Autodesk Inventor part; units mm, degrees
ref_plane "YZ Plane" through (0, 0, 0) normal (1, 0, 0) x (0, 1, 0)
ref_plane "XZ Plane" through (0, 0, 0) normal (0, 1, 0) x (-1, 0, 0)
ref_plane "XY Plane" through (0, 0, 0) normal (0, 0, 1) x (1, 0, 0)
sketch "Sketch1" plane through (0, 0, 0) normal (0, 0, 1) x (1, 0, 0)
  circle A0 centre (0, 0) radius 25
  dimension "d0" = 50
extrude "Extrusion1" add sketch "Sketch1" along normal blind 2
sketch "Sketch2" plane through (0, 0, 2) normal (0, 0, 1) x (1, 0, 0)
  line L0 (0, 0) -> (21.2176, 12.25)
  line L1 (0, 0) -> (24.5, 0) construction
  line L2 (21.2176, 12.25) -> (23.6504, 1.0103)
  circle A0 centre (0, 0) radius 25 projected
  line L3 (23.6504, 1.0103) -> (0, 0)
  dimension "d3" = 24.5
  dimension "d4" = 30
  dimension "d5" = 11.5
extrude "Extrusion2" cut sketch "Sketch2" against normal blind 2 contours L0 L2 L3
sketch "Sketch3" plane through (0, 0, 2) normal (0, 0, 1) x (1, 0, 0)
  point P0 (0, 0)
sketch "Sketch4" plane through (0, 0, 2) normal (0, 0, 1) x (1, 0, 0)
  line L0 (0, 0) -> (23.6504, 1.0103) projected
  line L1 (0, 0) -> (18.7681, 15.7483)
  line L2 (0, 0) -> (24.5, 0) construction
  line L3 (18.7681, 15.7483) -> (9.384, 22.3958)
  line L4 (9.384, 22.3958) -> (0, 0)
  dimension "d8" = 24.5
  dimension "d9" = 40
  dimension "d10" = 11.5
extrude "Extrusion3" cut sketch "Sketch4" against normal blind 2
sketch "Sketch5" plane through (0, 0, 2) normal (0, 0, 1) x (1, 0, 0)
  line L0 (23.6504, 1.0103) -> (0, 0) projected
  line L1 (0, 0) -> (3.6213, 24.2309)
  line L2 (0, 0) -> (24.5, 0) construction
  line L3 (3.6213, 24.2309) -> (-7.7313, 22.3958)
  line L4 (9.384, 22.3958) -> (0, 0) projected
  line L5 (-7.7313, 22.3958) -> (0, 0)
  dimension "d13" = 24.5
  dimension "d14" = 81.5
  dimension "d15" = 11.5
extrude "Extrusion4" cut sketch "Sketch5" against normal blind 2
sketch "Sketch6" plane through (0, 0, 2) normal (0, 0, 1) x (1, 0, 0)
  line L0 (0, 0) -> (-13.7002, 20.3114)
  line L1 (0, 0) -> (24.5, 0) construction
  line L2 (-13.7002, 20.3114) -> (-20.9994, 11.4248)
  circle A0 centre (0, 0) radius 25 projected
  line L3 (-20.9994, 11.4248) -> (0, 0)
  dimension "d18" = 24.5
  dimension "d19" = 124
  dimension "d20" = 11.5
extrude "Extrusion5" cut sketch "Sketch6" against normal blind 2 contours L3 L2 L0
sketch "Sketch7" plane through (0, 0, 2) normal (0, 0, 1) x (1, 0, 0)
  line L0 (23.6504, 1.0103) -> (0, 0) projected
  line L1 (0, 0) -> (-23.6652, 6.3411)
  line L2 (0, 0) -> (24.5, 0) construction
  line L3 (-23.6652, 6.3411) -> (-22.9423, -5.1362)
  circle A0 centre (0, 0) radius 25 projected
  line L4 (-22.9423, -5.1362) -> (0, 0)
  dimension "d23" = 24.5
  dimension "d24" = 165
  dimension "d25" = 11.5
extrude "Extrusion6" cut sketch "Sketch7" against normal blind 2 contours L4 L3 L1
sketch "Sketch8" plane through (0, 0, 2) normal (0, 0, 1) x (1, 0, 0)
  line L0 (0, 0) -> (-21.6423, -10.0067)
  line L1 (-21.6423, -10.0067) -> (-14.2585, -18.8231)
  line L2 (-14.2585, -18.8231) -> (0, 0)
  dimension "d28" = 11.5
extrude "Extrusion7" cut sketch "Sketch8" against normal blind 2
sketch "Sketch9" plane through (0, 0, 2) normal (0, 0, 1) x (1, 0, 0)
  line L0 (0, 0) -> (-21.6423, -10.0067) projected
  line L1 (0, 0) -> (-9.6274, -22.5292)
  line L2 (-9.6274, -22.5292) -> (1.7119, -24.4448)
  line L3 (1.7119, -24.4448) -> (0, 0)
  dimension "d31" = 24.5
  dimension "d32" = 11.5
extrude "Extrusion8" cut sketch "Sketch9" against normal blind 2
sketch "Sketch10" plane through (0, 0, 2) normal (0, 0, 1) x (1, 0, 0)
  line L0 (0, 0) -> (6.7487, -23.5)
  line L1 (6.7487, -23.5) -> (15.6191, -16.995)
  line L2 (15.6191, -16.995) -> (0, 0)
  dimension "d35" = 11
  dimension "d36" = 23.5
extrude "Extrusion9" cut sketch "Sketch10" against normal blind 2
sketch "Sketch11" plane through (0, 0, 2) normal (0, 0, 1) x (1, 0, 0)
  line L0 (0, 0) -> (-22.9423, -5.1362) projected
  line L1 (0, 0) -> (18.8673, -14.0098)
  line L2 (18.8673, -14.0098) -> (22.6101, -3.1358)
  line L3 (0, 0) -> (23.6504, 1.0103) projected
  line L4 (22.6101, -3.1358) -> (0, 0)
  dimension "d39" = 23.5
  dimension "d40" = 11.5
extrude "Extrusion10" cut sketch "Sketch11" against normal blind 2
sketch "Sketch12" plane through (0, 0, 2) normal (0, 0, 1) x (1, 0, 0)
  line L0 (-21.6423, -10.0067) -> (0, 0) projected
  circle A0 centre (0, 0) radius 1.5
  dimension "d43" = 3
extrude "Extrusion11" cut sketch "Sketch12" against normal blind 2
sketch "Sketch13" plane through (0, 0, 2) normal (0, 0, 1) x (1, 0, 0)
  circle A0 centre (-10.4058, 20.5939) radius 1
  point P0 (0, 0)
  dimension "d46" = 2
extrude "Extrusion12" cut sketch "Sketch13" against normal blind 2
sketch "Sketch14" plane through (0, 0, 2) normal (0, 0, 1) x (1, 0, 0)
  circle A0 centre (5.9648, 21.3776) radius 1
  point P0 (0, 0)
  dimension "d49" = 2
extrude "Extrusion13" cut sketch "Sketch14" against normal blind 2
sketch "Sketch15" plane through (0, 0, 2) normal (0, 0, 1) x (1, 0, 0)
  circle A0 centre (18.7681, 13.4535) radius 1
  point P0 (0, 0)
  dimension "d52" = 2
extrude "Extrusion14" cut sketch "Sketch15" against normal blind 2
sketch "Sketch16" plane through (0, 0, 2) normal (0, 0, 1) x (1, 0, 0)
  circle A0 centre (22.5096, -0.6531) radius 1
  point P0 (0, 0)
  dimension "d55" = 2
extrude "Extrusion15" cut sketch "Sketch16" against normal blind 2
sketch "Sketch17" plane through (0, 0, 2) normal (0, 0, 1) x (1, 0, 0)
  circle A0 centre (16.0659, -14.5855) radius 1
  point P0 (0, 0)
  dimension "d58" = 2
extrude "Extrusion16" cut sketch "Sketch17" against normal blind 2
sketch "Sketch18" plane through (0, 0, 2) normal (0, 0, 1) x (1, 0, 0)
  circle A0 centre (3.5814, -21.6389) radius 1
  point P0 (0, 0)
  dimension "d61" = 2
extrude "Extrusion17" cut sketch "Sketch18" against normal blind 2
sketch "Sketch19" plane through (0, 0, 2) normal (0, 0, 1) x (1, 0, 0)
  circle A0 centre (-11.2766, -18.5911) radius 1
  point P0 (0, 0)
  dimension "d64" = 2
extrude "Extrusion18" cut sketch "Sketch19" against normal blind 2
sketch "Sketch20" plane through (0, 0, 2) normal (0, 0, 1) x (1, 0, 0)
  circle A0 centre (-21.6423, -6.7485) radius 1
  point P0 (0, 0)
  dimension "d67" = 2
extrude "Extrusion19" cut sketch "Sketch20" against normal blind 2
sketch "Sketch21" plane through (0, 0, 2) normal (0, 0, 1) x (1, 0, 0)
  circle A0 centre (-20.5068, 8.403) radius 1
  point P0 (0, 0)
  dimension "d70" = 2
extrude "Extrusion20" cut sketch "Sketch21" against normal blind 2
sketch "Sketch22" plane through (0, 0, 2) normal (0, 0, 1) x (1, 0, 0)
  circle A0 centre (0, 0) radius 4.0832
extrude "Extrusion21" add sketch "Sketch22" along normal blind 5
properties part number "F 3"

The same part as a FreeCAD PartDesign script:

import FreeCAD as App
import Part
import Sketcher
Q = App.Units.Quantity


def add_polygon(sketch, points):
    """Adds a closed chain of lines whose ends are joined by coincident constraints."""
    first, n = sketch.GeometryCount, len(points)
    for a, b in zip(points, points[1:] + points[:1]):
        sketch.addGeometry(Part.LineSegment(App.Vector(*a, 0), App.Vector(*b, 0)), False)
    for i in range(n):
        sketch.addConstraint(Sketcher.Constraint("Coincident", first + i, 2, first + (i + 1) % n, 1))

doc = App.newDocument("Part")
body = doc.addObject("PartDesign::Body", "Body")

sketch1 = body.newObject("Sketcher::SketchObject", "Sketch")
sketch1.AttachmentSupport = (doc.getObject("XY_Plane"), [""])
sketch1.MapMode = "FlatFace"
sketch1.addGeometry(Part.Circle(App.Vector(0, 0, 0), App.Vector(0, 0, 1), 25), False)
sketch1.addConstraint(Sketcher.Constraint("Coincident", 0, 3, -1, 1))
sketch1.addConstraint(Sketcher.Constraint("Diameter", 0, Q("50 mm")))
pad1 = body.newObject("PartDesign::Pad", "Pad")
pad1.Profile = sketch1
pad1.Length = 2

sketch2 = body.newObject("Sketcher::SketchObject", "Sketch001")
sketch2.AttachmentSupport = (doc.getObject("XY_Plane"), [""])
sketch2.MapMode = "FlatFace"
sketch2.AttachmentOffset = App.Placement(App.Vector(0, 0, 2), App.Rotation())
add_polygon(sketch2, [(21, 12), (0, 0), (24, 1)])
sketch2.addConstraint(Sketcher.Constraint("Coincident", 0, 2, -1, 1))
sketch2.addConstraint(Sketcher.Constraint("Distance", 0, Q("24.5 mm")))
sketch2.addConstraint(Sketcher.Constraint("Distance", 2, Q("11.5 mm")))
sketch2.addConstraint(Sketcher.Constraint("Angle", 0, Q("-150 deg")))
sketch2.addConstraint(Sketcher.Constraint("Distance", 1, Q("23.672 mm")))
pocket1 = body.newObject("PartDesign::Pocket", "Pocket")
pocket1.Profile = sketch2
pocket1.Length = 2

sketch3 = body.newObject("Sketcher::SketchObject", "Sketch002")
sketch3.AttachmentSupport = (doc.getObject("XY_Plane"), [""])
sketch3.MapMode = "FlatFace"
sketch3.AttachmentOffset = App.Placement(App.Vector(0, 0, 2), App.Rotation())
add_polygon(sketch3, [(9, 22), (0, 0), (19, 16)])
sketch3.addConstraint(Sketcher.Constraint("Coincident", 0, 2, -1, 1))
sketch3.addConstraint(Sketcher.Constraint("Angle", 1, Q("40 deg")))
sketch3.addConstraint(Sketcher.Constraint("Distance", 1, Q("24.5 mm")))
sketch3.addConstraint(Sketcher.Constraint("Distance", 2, Q("11.5 mm")))
sketch3.addConstraint(Sketcher.Constraint("DistanceX", -1, 1, 2, 2, Q("9.384 mm")))
pocket2 = body.newObject("PartDesign::Pocket", "Pocket001")
pocket2.Profile = sketch3
pocket2.Length = 2

sketch4 = body.newObject("Sketcher::SketchObject", "Sketch003")
sketch4.AttachmentSupport = (doc.getObject("XY_Plane"), [""])
sketch4.MapMode = "FlatFace"
sketch4.AttachmentOffset = App.Placement(App.Vector(0, 0, 2), App.Rotation())
add_polygon(sketch4, [(-8, 22), (0, 0), (4, 24)])
sketch4.addConstraint(Sketcher.Constraint("Coincident", 0, 2, -1, 1))
sketch4.addConstraint(Sketcher.Constraint("Angle", 1, Q("81.5 deg")))
sketch4.addConstraint(Sketcher.Constraint("Distance", 1, Q("24.5 mm")))
sketch4.addConstraint(Sketcher.Constraint("Distance", 2, Q("11.5 mm")))
sketch4.addConstraint(Sketcher.Constraint("DistanceY", 2, 2, 1, 2, Q("1.835 mm")))
pocket3 = body.newObject("PartDesign::Pocket", "Pocket002")
pocket3.Profile = sketch4
pocket3.Length = 2

sketch5 = body.newObject("Sketcher::SketchObject", "Sketch004")
sketch5.AttachmentSupport = (doc.getObject("XY_Plane"), [""])
sketch5.MapMode = "FlatFace"
sketch5.AttachmentOffset = App.Placement(App.Vector(0, 0, 2), App.Rotation())
add_polygon(sketch5, [(-21, 11), (0, 0), (-14, 20)])
sketch5.addConstraint(Sketcher.Constraint("Coincident", 0, 2, -1, 1))
sketch5.addConstraint(Sketcher.Constraint("Angle", 1, Q("124 deg")))
sketch5.addConstraint(Sketcher.Constraint("Distance", 1, Q("24.5 mm")))
sketch5.addConstraint(Sketcher.Constraint("Distance", 2, Q("11.5 mm")))
sketch5.addConstraint(Sketcher.Constraint("Distance", 0, Q("23.906 mm")))
pocket4 = body.newObject("PartDesign::Pocket", "Pocket003")
pocket4.Profile = sketch5
pocket4.Length = 2

sketch6 = body.newObject("Sketcher::SketchObject", "Sketch005")
sketch6.AttachmentSupport = (doc.getObject("XY_Plane"), [""])
sketch6.MapMode = "FlatFace"
sketch6.AttachmentOffset = App.Placement(App.Vector(0, 0, 2), App.Rotation())
add_polygon(sketch6, [(-23, -5), (0, 0), (-24, 6)])
sketch6.addConstraint(Sketcher.Constraint("Coincident", 0, 2, -1, 1))
sketch6.addConstraint(Sketcher.Constraint("Angle", 1, Q("165 deg")))
sketch6.addConstraint(Sketcher.Constraint("Distance", 1, Q("24.5 mm")))
sketch6.addConstraint(Sketcher.Constraint("Distance", 2, Q("11.5 mm")))
sketch6.addConstraint(Sketcher.Constraint("Angle", 0, Q("12.619 deg")))
pocket5 = body.newObject("PartDesign::Pocket", "Pocket004")
pocket5.Profile = sketch6
pocket5.Length = 2

sketch7 = body.newObject("Sketcher::SketchObject", "Sketch006")
sketch7.AttachmentSupport = (doc.getObject("XY_Plane"), [""])
sketch7.MapMode = "FlatFace"
sketch7.AttachmentOffset = App.Placement(App.Vector(0, 0, 2), App.Rotation())
add_polygon(sketch7, [(-14, -19), (0, 0), (-22, -10)])
sketch7.addConstraint(Sketcher.Constraint("Coincident", 0, 2, -1, 1))
sketch7.addConstraint(Sketcher.Constraint("Distance", 2, Q("11.5 mm")))
sketch7.addConstraint(Sketcher.Constraint("DistanceY", 2, 2, -1, 1, Q("18.823 mm")))
sketch7.addConstraint(Sketcher.Constraint("Distance", 0, Q("23.6139 mm")))
sketch7.addConstraint(Sketcher.Constraint("Distance", 1, Q("23.8437 mm")))
pocket6 = body.newObject("PartDesign::Pocket", "Pocket005")
pocket6.Profile = sketch7
pocket6.Length = 2

sketch8 = body.newObject("Sketcher::SketchObject", "Sketch007")
sketch8.AttachmentSupport = (doc.getObject("XY_Plane"), [""])
sketch8.MapMode = "FlatFace"
sketch8.AttachmentOffset = App.Placement(App.Vector(0, 0, 2), App.Rotation())
add_polygon(sketch8, [(2, -24), (0, 0), (-10, -23)])
sketch8.addConstraint(Sketcher.Constraint("Coincident", 0, 2, -1, 1))
sketch8.addConstraint(Sketcher.Constraint("Distance", 1, Q("24.5 mm")))
sketch8.addConstraint(Sketcher.Constraint("Distance", 2, Q("11.5 mm")))
sketch8.addConstraint(Sketcher.Constraint("DistanceX", -1, 1, 2, 2, Q("1.712 mm")))
sketch8.addConstraint(Sketcher.Constraint("Distance", 0, Q("24.5047 mm")))
pocket7 = body.newObject("PartDesign::Pocket", "Pocket006")
pocket7.Profile = sketch8
pocket7.Length = 2

sketch9 = body.newObject("Sketcher::SketchObject", "Sketch008")
sketch9.AttachmentSupport = (doc.getObject("XY_Plane"), [""])
sketch9.MapMode = "FlatFace"
sketch9.AttachmentOffset = App.Placement(App.Vector(0, 0, 2), App.Rotation())
add_polygon(sketch9, [(16, -17), (0, 0), (7, -24)])
sketch9.addConstraint(Sketcher.Constraint("Coincident", 0, 2, -1, 1))
sketch9.addConstraint(Sketcher.Constraint("Distance", 2, Q("11 mm")))
sketch9.addConstraint(Sketcher.Constraint("DistanceY", 1, 2, -1, 1, Q("23.5 mm")))
sketch9.addConstraint(Sketcher.Constraint("DistanceX", -1, 1, 2, 2, Q("15.619 mm")))
sketch9.addConstraint(Sketcher.Constraint("DistanceY", 2, 2, -1, 1, Q("16.995 mm")))
pocket8 = body.newObject("PartDesign::Pocket", "Pocket007")
pocket8.Profile = sketch9
pocket8.Length = 2

sketch10 = body.newObject("Sketcher::SketchObject", "Sketch009")
sketch10.AttachmentSupport = (doc.getObject("XY_Plane"), [""])
sketch10.MapMode = "FlatFace"
sketch10.AttachmentOffset = App.Placement(App.Vector(0, 0, 2), App.Rotation())
add_polygon(sketch10, [(23, -3), (0, 0), (19, -14)])
sketch10.addConstraint(Sketcher.Constraint("Coincident", 0, 2, -1, 1))
sketch10.addConstraint(Sketcher.Constraint("Distance", 1, Q("23.5 mm")))
sketch10.addConstraint(Sketcher.Constraint("Distance", 2, Q("11.5 mm")))
sketch10.addConstraint(Sketcher.Constraint("DistanceX", -1, 1, 2, 2, Q("22.61 mm")))
sketch10.addConstraint(Sketcher.Constraint("DistanceY", 1, 2, 2, 2, Q("10.874 mm")))
pocket9 = body.newObject("PartDesign::Pocket", "Pocket008")
pocket9.Profile = sketch10
pocket9.Length = 2

sketch11 = body.newObject("Sketcher::SketchObject", "Sketch010")
sketch11.AttachmentSupport = (doc.getObject("XY_Plane"), [""])
sketch11.MapMode = "FlatFace"
sketch11.AttachmentOffset = App.Placement(App.Vector(0, 0, 2), App.Rotation())
sketch11.addGeometry(Part.Circle(App.Vector(0, 0, 0), App.Vector(0, 0, 1), 1.5), False)
sketch11.addConstraint(Sketcher.Constraint("Coincident", 0, 3, -1, 1))
sketch11.addConstraint(Sketcher.Constraint("Diameter", 0, Q("3 mm")))
pocket10 = body.newObject("PartDesign::Pocket", "Pocket009")
pocket10.Profile = sketch11
pocket10.Length = 2

sketch12 = body.newObject("Sketcher::SketchObject", "Sketch011")
sketch12.AttachmentSupport = (doc.getObject("XY_Plane"), [""])
sketch12.MapMode = "FlatFace"
sketch12.AttachmentOffset = App.Placement(App.Vector(0, 0, 2), App.Rotation())
sketch12.addGeometry(Part.Circle(App.Vector(-10.4, 20.6, 0), App.Vector(0, 0, 1), 1), False)
sketch12.addConstraint(Sketcher.Constraint("Diameter", 0, Q("2 mm")))
sketch12.addConstraint(Sketcher.Constraint("DistanceY", -1, 1, 0, 3, Q("20.594 mm")))
sketch12.addConstraint(Sketcher.Constraint("DistanceX", 0, 3, -1, 1, Q("10.4058 mm")))
pocket11 = body.newObject("PartDesign::Pocket", "Pocket010")
pocket11.Profile = sketch12
pocket11.Length = 2

sketch13 = body.newObject("Sketcher::SketchObject", "Sketch012")
sketch13.AttachmentSupport = (doc.getObject("XY_Plane"), [""])
sketch13.MapMode = "FlatFace"
sketch13.AttachmentOffset = App.Placement(App.Vector(0, 0, 2), App.Rotation())
sketch13.addGeometry(Part.Circle(App.Vector(6, 21.4, 0), App.Vector(0, 0, 1), 1), False)
sketch13.addConstraint(Sketcher.Constraint("Diameter", 0, Q("2 mm")))
sketch13.addConstraint(Sketcher.Constraint("DistanceX", -1, 1, 0, 3, Q("5.9648 mm")))
sketch13.addConstraint(Sketcher.Constraint("DistanceY", -1, 1, 0, 3, Q("21.3776 mm")))
pocket12 = body.newObject("PartDesign::Pocket", "Pocket011")
pocket12.Profile = sketch13
pocket12.Length = 2

sketch14 = body.newObject("Sketcher::SketchObject", "Sketch013")
sketch14.AttachmentSupport = (doc.getObject("XY_Plane"), [""])
sketch14.MapMode = "FlatFace"
sketch14.AttachmentOffset = App.Placement(App.Vector(0, 0, 2), App.Rotation())
sketch14.addGeometry(Part.Circle(App.Vector(18.8, 13.5, 0), App.Vector(0, 0, 1), 1), False)
sketch14.addConstraint(Sketcher.Constraint("Diameter", 0, Q("2 mm")))
sketch14.addConstraint(Sketcher.Constraint("DistanceX", -1, 1, 0, 3, Q("18.768 mm")))
sketch14.addConstraint(Sketcher.Constraint("DistanceY", -1, 1, 0, 3, Q("13.4535 mm")))
pocket13 = body.newObject("PartDesign::Pocket", "Pocket012")
pocket13.Profile = sketch14
pocket13.Length = 2

sketch15 = body.newObject("Sketcher::SketchObject", "Sketch014")
sketch15.AttachmentSupport = (doc.getObject("XY_Plane"), [""])
sketch15.MapMode = "FlatFace"
sketch15.AttachmentOffset = App.Placement(App.Vector(0, 0, 2), App.Rotation())
sketch15.addGeometry(Part.Circle(App.Vector(22.5, -0.7, 0), App.Vector(0, 0, 1), 1), False)
sketch15.addConstraint(Sketcher.Constraint("Diameter", 0, Q("2 mm")))
sketch15.addConstraint(Sketcher.Constraint("DistanceY", 0, 3, -1, 1, Q("0.653 mm")))
sketch15.addConstraint(Sketcher.Constraint("DistanceX", -1, 1, 0, 3, Q("22.5096 mm")))
pocket14 = body.newObject("PartDesign::Pocket", "Pocket013")
pocket14.Profile = sketch15
pocket14.Length = 2

sketch16 = body.newObject("Sketcher::SketchObject", "Sketch015")
sketch16.AttachmentSupport = (doc.getObject("XY_Plane"), [""])
sketch16.MapMode = "FlatFace"
sketch16.AttachmentOffset = App.Placement(App.Vector(0, 0, 2), App.Rotation())
sketch16.addGeometry(Part.Circle(App.Vector(16.1, -14.6, 0), App.Vector(0, 0, 1), 1), False)
sketch16.addConstraint(Sketcher.Constraint("Diameter", 0, Q("2 mm")))
sketch16.addConstraint(Sketcher.Constraint("DistanceX", -1, 1, 0, 3, Q("16.066 mm")))
sketch16.addConstraint(Sketcher.Constraint("DistanceY", 0, 3, -1, 1, Q("14.5855 mm")))
pocket15 = body.newObject("PartDesign::Pocket", "Pocket014")
pocket15.Profile = sketch16
pocket15.Length = 2

sketch17 = body.newObject("Sketcher::SketchObject", "Sketch016")
sketch17.AttachmentSupport = (doc.getObject("XY_Plane"), [""])
sketch17.MapMode = "FlatFace"
sketch17.AttachmentOffset = App.Placement(App.Vector(0, 0, 2), App.Rotation())
sketch17.addGeometry(Part.Circle(App.Vector(3.6, -21.6, 0), App.Vector(0, 0, 1), 1), False)
sketch17.addConstraint(Sketcher.Constraint("Diameter", 0, Q("2 mm")))
sketch17.addConstraint(Sketcher.Constraint("DistanceY", 0, 3, -1, 1, Q("21.639 mm")))
sketch17.addConstraint(Sketcher.Constraint("DistanceX", -1, 1, 0, 3, Q("3.5814 mm")))
pocket16 = body.newObject("PartDesign::Pocket", "Pocket015")
pocket16.Profile = sketch17
pocket16.Length = 2

sketch18 = body.newObject("Sketcher::SketchObject", "Sketch017")
sketch18.AttachmentSupport = (doc.getObject("XY_Plane"), [""])
sketch18.MapMode = "FlatFace"
sketch18.AttachmentOffset = App.Placement(App.Vector(0, 0, 2), App.Rotation())
sketch18.addGeometry(Part.Circle(App.Vector(-11.3, -18.6, 0), App.Vector(0, 0, 1), 1), False)
sketch18.addConstraint(Sketcher.Constraint("Diameter", 0, Q("2 mm")))
sketch18.addConstraint(Sketcher.Constraint("DistanceY", 0, 3, -1, 1, Q("18.591 mm")))
sketch18.addConstraint(Sketcher.Constraint("DistanceX", 0, 3, -1, 1, Q("11.2766 mm")))
pocket17 = body.newObject("PartDesign::Pocket", "Pocket016")
pocket17.Profile = sketch18
pocket17.Length = 2

sketch19 = body.newObject("Sketcher::SketchObject", "Sketch018")
sketch19.AttachmentSupport = (doc.getObject("XY_Plane"), [""])
sketch19.MapMode = "FlatFace"
sketch19.AttachmentOffset = App.Placement(App.Vector(0, 0, 2), App.Rotation())
sketch19.addGeometry(Part.Circle(App.Vector(-21.6, -6.7, 0), App.Vector(0, 0, 1), 1), False)
sketch19.addConstraint(Sketcher.Constraint("Diameter", 0, Q("2 mm")))
sketch19.addConstraint(Sketcher.Constraint("DistanceX", 0, 3, -1, 1, Q("21.6423 mm")))
sketch19.addConstraint(Sketcher.Constraint("DistanceY", 0, 3, -1, 1, Q("6.7485 mm")))
pocket18 = body.newObject("PartDesign::Pocket", "Pocket017")
pocket18.Profile = sketch19
pocket18.Length = 2

sketch20 = body.newObject("Sketcher::SketchObject", "Sketch019")
sketch20.AttachmentSupport = (doc.getObject("XY_Plane"), [""])
sketch20.MapMode = "FlatFace"
sketch20.AttachmentOffset = App.Placement(App.Vector(0, 0, 2), App.Rotation())
sketch20.addGeometry(Part.Circle(App.Vector(-20.5, 8.4, 0), App.Vector(0, 0, 1), 1), False)
sketch20.addConstraint(Sketcher.Constraint("Diameter", 0, Q("2 mm")))
sketch20.addConstraint(Sketcher.Constraint("DistanceY", -1, 1, 0, 3, Q("8.403 mm")))
sketch20.addConstraint(Sketcher.Constraint("DistanceX", 0, 3, -1, 1, Q("20.5068 mm")))
pocket19 = body.newObject("PartDesign::Pocket", "Pocket018")
pocket19.Profile = sketch20
pocket19.Length = 2

sketch21 = body.newObject("Sketcher::SketchObject", "Sketch020")
sketch21.AttachmentSupport = (doc.getObject("XY_Plane"), [""])
sketch21.MapMode = "FlatFace"
sketch21.AttachmentOffset = App.Placement(App.Vector(0, 0, 2), App.Rotation())
sketch21.addGeometry(Part.Circle(App.Vector(0, 0, 0), App.Vector(0, 0, 1), 4.1), False)
sketch21.addConstraint(Sketcher.Constraint("Coincident", 0, 3, -1, 1))
sketch21.addConstraint(Sketcher.Constraint("Diameter", 0, Q("8.1664 mm")))
pad2 = body.newObject("PartDesign::Pad", "Pad001")
pad2.Profile = sketch21
pad2.Length = 5

doc.recompute()
